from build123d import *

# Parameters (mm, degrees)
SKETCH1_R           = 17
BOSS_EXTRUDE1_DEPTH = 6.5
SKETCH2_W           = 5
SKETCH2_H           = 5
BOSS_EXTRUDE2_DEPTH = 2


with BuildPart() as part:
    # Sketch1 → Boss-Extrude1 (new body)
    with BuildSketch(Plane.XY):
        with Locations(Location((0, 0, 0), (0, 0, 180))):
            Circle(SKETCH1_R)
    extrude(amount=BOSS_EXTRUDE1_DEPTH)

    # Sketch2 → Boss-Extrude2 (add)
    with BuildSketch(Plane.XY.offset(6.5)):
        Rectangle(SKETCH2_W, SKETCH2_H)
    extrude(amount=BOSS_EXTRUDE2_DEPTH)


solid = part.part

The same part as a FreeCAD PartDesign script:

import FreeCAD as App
import Part
import Sketcher

V = App.Vector
Q = App.Units.Quantity

doc = App.newDocument("Part")
params = doc.addObject("Spreadsheet::Sheet", "Params")
for row, (alias, value) in enumerate([
    ("sketch1_diameter", "34 mm"),
    ("pad1_length", "6.5 mm"),
    ("sketch2_width", "5 mm"),
    ("pad2_length", "2 mm"),
], start=1):
    params.set(f"A{row}", alias)
    params.set(f"B{row}", "=" + value)
    params.setAlias(f"B{row}", alias)

body = doc.addObject("PartDesign::Body", "Body")

sketch1 = body.newObject("Sketcher::SketchObject", "Sketch")
sketch1.AttachmentSupport = (doc.getObject("XY_Plane"), [""])
sketch1.MapMode = "FlatFace"
sketch1.addGeometry(Part.Circle(V(0, 0, 0), V(0, 0, 1), 17), False)
sketch1.addConstraint([
    Sketcher.Constraint("Coincident", 0, 3, -1, 1),
    Sketcher.Constraint("Diameter", 0, Q("34 mm")),
])
sketch1.setExpression("Constraints[1]", "Params.sketch1_diameter")
pad1 = body.newObject("PartDesign::Pad", "Pad")
pad1.Profile = sketch1
pad1.setExpression("Length", "Params.pad1_length")

sketch2 = body.newObject("Sketcher::SketchObject", "Sketch001")
sketch2.AttachmentSupport = (doc.getObject("XY_Plane"), [""])
sketch2.MapMode = "FlatFace"
sketch2.AttachmentOffset = App.Placement(V(0, 0, 6.5), App.Rotation())
sketch2.addGeometry([
    Part.LineSegment(V(-2.5, 2.5, 0), V(-2.5, -2.5, 0)),
    Part.LineSegment(V(-2.5, -2.5, 0), V(2.5, -2.5, 0)),
    Part.LineSegment(V(2.5, -2.5, 0), V(2.5, 2.5, 0)),
    Part.LineSegment(V(2.5, 2.5, 0), V(-2.5, 2.5, 0)),
], False)
sketch2.addConstraint([
    Sketcher.Constraint("Coincident", 0, 2, 1, 1),
    Sketcher.Constraint("Coincident", 1, 2, 2, 1),
    Sketcher.Constraint("Coincident", 2, 2, 3, 1),
    Sketcher.Constraint("Coincident", 3, 2, 0, 1),
    Sketcher.Constraint("Vertical", 0),
    Sketcher.Constraint("Horizontal", 1),
    Sketcher.Constraint("Vertical", 2),
    Sketcher.Constraint("Horizontal", 3),
    Sketcher.Constraint("Symmetric", 0, 2, 2, 2, -1, 1),
    Sketcher.Constraint("Equal", 3, 0),
    Sketcher.Constraint("DistanceX", 1, 1, 1, 2, Q("5 mm")),
])
sketch2.setExpression("Constraints[10]", "Params.sketch2_width")
pad2 = body.newObject("PartDesign::Pad", "Pad001")
pad2.Profile = sketch2
pad2.setExpression("Length", "Params.pad2_length")

doc.recompute()
